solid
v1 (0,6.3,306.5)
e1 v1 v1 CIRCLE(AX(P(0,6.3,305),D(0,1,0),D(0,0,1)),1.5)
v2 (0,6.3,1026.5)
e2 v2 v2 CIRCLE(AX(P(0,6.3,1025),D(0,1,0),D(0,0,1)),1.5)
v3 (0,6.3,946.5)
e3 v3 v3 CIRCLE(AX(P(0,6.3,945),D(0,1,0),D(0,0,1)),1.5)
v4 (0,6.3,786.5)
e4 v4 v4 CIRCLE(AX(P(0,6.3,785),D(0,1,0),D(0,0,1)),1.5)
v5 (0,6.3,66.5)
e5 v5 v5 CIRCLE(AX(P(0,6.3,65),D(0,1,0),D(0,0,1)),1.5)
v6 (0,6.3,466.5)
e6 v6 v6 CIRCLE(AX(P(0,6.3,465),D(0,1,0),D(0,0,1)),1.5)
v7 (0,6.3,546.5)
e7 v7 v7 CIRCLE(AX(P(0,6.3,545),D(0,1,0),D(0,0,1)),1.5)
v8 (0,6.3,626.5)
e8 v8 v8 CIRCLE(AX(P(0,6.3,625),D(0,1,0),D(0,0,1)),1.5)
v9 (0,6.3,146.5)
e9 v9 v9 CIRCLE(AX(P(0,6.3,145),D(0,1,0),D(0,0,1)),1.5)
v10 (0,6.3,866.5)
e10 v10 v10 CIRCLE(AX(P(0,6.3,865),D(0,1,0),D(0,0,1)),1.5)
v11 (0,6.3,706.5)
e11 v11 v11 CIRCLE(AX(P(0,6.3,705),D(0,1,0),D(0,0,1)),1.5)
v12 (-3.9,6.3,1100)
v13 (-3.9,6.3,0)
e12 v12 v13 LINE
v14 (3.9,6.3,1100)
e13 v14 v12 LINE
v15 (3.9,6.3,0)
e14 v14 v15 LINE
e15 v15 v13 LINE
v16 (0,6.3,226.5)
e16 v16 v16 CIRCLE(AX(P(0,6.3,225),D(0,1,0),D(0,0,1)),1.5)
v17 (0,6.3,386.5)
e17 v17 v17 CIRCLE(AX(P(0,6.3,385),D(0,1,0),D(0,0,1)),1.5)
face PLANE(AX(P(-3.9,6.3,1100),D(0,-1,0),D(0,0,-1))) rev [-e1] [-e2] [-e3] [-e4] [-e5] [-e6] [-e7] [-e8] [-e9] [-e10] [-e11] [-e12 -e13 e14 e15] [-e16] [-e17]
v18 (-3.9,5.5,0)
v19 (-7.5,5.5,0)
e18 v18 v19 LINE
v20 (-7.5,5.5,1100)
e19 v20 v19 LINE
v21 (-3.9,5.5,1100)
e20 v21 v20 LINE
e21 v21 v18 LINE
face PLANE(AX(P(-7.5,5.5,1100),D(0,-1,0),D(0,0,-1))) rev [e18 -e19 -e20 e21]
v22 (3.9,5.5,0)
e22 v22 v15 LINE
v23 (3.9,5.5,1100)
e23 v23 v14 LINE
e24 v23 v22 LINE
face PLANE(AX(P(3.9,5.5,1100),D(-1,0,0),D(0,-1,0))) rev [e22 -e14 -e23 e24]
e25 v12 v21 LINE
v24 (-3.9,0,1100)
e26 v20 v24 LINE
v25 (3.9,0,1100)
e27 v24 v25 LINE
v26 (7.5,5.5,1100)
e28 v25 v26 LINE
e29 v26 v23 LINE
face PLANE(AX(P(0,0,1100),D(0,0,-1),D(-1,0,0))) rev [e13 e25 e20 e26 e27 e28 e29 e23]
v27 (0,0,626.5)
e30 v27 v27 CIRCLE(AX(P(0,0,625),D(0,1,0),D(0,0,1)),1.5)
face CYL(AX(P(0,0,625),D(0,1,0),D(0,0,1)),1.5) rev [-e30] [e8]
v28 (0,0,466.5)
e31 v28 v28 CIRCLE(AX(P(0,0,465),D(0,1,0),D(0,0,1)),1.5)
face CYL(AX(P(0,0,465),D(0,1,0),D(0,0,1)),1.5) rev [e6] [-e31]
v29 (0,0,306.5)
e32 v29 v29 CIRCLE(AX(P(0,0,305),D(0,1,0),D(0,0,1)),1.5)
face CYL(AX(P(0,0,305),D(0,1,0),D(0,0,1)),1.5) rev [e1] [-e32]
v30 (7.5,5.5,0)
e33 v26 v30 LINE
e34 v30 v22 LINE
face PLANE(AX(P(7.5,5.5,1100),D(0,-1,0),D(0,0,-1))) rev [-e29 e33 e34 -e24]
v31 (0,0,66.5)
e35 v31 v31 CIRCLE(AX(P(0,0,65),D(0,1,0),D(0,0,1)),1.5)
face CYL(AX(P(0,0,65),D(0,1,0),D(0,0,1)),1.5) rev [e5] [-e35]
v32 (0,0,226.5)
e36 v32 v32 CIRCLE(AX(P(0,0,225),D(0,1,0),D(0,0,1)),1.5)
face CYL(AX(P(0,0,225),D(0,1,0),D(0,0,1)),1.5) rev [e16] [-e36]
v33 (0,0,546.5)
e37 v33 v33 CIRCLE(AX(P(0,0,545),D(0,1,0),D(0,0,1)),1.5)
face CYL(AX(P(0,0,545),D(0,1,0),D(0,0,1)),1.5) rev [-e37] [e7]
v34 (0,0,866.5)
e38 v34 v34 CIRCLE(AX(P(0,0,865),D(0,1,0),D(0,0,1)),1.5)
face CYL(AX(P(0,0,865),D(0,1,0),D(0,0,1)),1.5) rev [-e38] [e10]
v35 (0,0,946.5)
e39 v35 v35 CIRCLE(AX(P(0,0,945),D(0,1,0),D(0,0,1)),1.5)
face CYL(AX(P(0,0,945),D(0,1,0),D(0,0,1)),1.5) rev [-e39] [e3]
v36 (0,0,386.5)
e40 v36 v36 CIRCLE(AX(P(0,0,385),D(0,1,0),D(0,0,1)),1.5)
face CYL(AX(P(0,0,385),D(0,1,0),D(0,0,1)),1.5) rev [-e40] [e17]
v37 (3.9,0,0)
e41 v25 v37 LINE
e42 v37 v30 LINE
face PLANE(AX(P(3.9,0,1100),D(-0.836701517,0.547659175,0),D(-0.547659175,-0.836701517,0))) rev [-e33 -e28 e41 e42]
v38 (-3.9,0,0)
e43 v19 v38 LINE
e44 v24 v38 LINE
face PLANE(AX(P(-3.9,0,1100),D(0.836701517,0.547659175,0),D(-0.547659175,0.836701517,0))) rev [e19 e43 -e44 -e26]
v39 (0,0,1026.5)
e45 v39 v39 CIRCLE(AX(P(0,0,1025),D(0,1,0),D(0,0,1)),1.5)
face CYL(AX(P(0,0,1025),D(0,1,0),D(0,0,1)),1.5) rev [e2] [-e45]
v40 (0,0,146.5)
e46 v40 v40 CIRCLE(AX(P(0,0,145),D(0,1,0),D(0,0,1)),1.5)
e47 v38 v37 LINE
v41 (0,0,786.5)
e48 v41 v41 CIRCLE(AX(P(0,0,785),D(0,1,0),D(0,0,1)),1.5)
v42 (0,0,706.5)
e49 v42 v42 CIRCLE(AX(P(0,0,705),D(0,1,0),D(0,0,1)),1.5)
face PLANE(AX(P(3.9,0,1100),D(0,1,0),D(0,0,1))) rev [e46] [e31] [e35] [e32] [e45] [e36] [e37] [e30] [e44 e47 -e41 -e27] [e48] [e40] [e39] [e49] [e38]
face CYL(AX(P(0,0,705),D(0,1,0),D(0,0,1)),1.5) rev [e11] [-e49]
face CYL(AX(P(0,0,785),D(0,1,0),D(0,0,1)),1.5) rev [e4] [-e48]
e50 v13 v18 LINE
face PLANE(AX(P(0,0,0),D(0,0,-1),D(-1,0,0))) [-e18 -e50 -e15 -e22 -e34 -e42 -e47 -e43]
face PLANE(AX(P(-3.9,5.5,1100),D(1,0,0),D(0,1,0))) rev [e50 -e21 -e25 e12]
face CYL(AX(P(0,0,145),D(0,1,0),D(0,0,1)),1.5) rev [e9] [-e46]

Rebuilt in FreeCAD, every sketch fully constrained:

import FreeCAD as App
import Part
import Sketcher
from FreeCAD import Vector


def add_polygon(sketch, points):
    """Adds a closed chain of lines whose ends are joined by coincident constraints."""
    first, n = sketch.GeometryCount, len(points)
    for a, b in zip(points, points[1:] + points[:1]):
        sketch.addGeometry(Part.LineSegment(App.Vector(*a, 0), App.Vector(*b, 0)), False)
    for i in range(n):
        sketch.addConstraint(Sketcher.Constraint("Coincident", first + i, 2, first + (i + 1) % n, 1))

doc = App.newDocument("Part")
body = doc.addObject("PartDesign::Body", "Body")

# Sketch on XY plane
sketch1 = body.newObject("Sketcher::SketchObject", "Sketch")
sketch1.AttachmentSupport = (doc.getObject("XY_Plane"), [""])
sketch1.MapMode = "FlatFace"
add_polygon(sketch1, [(-3.9, 0), (3.9, 0), (7.5, 5.5), (3.9, 5.5), (3.9, 6.3), (-3.9, 6.3), (-3.9, 5.5), (-7.5, 5.5)])  # lines 0-7
sketch1.addConstraint([
    Sketcher.Constraint("Horizontal", 0),
    Sketcher.Constraint("Horizontal", 2),
    Sketcher.Constraint("Vertical", 3),
    Sketcher.Constraint("Horizontal", 4),
    Sketcher.Constraint("Vertical", 5),
    Sketcher.Constraint("Horizontal", 6),
    Sketcher.Constraint("Symmetric", 0, 2, 7, 2, -1, 1),
    Sketcher.Constraint("Symmetric", 2, 2, 5, 2, -2),
    Sketcher.Constraint("Vertical", 0, 2, 2, 2),
    Sketcher.Constraint("Equal", 2, 6),
    Sketcher.Constraint("DistanceX", 0, 1, 0, 2, 7.8),
    Sketcher.Constraint("DistanceX", 2, 2, 2, 1, 3.6),
    Sketcher.Constraint("DistanceY", 3, 1, 3, 2, 0.8),
    Sketcher.Constraint("DistanceY", -1, 1, 1, 2, 5.5),
])
pad1 = body.newObject("PartDesign::Pad", "Pad")
pad1.Profile = sketch1
pad1.Length = 1100

# Sketch on XZ plane
sketch2 = body.newObject("Sketcher::SketchObject", "Sketch001")
sketch2.AttachmentSupport = (doc.getObject("XZ_Plane"), [""])
sketch2.MapMode = "FlatFace"
sketch2.AttachmentOffset = App.Placement(Vector(0, 0, -6.3), App.Rotation())
sketch2.addGeometry([
    Part.Circle(Vector(0, 65, 0), Vector(0, 0, 1), 1.5),  # 0
    Part.Circle(Vector(0, 145, 0), Vector(0, 0, 1), 1.5),  # 1
    Part.Circle(Vector(0, 225, 0), Vector(0, 0, 1), 1.5),  # 2
    Part.Circle(Vector(0, 305, 0), Vector(0, 0, 1), 1.5),  # 3
    Part.Circle(Vector(0, 385, 0), Vector(0, 0, 1), 1.5),  # 4
    Part.Circle(Vector(0, 465, 0), Vector(0, 0, 1), 1.5),  # 5
    Part.Circle(Vector(0, 545, 0), Vector(0, 0, 1), 1.5),  # 6
    Part.Circle(Vector(0, 625, 0), Vector(0, 0, 1), 1.5),  # 7
    Part.Circle(Vector(0, 705, 0), Vector(0, 0, 1), 1.5),  # 8
    Part.Circle(Vector(0, 785, 0), Vector(0, 0, 1), 1.5),  # 9
    Part.Circle(Vector(0, 865, 0), Vector(0, 0, 1), 1.5),  # 10
    Part.Circle(Vector(0, 945, 0), Vector(0, 0, 1), 1.5),  # 11
    Part.Circle(Vector(0, 1025, 0), Vector(0, 0, 1), 1.5),  # 12
], False)
sketch2.addConstraint([
    Sketcher.Constraint("Equal", 0, 1),
    Sketcher.Constraint("Equal", 1, 2),
    Sketcher.Constraint("Equal", 2, 3),
    Sketcher.Constraint("Equal", 3, 4),
    Sketcher.Constraint("Equal", 4, 5),
    Sketcher.Constraint("Equal", 5, 6),
    Sketcher.Constraint("Equal", 6, 7),
    Sketcher.Constraint("Equal", 7, 8),
    Sketcher.Constraint("Equal", 8, 9),
    Sketcher.Constraint("Equal", 9, 10),
    Sketcher.Constraint("Equal", 10, 11),
    Sketcher.Constraint("Equal", 11, 12),
    Sketcher.Constraint("PointOnObject", 0, 3, -2),
    Sketcher.Constraint("PointOnObject", 1, 3, -2),
    Sketcher.Constraint("PointOnObject", 2, 3, -2),
    Sketcher.Constraint("PointOnObject", 3, 3, -2),
    Sketcher.Constraint("PointOnObject", 4, 3, -2),
    Sketcher.Constraint("PointOnObject", 5, 3, -2),
    Sketcher.Constraint("PointOnObject", 6, 3, -2),
    Sketcher.Constraint("PointOnObject", 7, 3, -2),
    Sketcher.Constraint("PointOnObject", 8, 3, -2),
    Sketcher.Constraint("PointOnObject", 9, 3, -2),
    Sketcher.Constraint("PointOnObject", 10, 3, -2),
    Sketcher.Constraint("PointOnObject", 11, 3, -2),
    Sketcher.Constraint("PointOnObject", 12, 3, -2),
    Sketcher.Constraint("Diameter", 0, 3.0),
    Sketcher.Constraint("DistanceY", -1, 1, 0, 3, 65.0),
    Sketcher.Constraint("DistanceY", -1, 1, 1, 3, 145.0),
    Sketcher.Constraint("DistanceY", -1, 1, 2, 3, 225.0),
    Sketcher.Constraint("DistanceY", -1, 1, 3, 3, 305.0),
    Sketcher.Constraint("DistanceY", -1, 1, 4, 3, 385.0),
    Sketcher.Constraint("DistanceY", -1, 1, 5, 3, 465.0),
    Sketcher.Constraint("DistanceY", -1, 1, 6, 3, 545.0),
    Sketcher.Constraint("DistanceY", -1, 1, 7, 3, 625.0),
    Sketcher.Constraint("DistanceY", -1, 1, 8, 3, 705.0),
    Sketcher.Constraint("DistanceY", -1, 1, 9, 3, 785.0),
    Sketcher.Constraint("DistanceY", -1, 1, 10, 3, 865.0),
    Sketcher.Constraint("DistanceY", -1, 1, 11, 3, 945.0),
    Sketcher.Constraint("DistanceY", -1, 1, 12, 3, 1025.0),
])
pocket1 = body.newObject("PartDesign::Pocket", "Pocket")
pocket1.Profile = sketch2
pocket1.Type = "ThroughAll"
pocket1.Reversed = True

doc.recompute()
